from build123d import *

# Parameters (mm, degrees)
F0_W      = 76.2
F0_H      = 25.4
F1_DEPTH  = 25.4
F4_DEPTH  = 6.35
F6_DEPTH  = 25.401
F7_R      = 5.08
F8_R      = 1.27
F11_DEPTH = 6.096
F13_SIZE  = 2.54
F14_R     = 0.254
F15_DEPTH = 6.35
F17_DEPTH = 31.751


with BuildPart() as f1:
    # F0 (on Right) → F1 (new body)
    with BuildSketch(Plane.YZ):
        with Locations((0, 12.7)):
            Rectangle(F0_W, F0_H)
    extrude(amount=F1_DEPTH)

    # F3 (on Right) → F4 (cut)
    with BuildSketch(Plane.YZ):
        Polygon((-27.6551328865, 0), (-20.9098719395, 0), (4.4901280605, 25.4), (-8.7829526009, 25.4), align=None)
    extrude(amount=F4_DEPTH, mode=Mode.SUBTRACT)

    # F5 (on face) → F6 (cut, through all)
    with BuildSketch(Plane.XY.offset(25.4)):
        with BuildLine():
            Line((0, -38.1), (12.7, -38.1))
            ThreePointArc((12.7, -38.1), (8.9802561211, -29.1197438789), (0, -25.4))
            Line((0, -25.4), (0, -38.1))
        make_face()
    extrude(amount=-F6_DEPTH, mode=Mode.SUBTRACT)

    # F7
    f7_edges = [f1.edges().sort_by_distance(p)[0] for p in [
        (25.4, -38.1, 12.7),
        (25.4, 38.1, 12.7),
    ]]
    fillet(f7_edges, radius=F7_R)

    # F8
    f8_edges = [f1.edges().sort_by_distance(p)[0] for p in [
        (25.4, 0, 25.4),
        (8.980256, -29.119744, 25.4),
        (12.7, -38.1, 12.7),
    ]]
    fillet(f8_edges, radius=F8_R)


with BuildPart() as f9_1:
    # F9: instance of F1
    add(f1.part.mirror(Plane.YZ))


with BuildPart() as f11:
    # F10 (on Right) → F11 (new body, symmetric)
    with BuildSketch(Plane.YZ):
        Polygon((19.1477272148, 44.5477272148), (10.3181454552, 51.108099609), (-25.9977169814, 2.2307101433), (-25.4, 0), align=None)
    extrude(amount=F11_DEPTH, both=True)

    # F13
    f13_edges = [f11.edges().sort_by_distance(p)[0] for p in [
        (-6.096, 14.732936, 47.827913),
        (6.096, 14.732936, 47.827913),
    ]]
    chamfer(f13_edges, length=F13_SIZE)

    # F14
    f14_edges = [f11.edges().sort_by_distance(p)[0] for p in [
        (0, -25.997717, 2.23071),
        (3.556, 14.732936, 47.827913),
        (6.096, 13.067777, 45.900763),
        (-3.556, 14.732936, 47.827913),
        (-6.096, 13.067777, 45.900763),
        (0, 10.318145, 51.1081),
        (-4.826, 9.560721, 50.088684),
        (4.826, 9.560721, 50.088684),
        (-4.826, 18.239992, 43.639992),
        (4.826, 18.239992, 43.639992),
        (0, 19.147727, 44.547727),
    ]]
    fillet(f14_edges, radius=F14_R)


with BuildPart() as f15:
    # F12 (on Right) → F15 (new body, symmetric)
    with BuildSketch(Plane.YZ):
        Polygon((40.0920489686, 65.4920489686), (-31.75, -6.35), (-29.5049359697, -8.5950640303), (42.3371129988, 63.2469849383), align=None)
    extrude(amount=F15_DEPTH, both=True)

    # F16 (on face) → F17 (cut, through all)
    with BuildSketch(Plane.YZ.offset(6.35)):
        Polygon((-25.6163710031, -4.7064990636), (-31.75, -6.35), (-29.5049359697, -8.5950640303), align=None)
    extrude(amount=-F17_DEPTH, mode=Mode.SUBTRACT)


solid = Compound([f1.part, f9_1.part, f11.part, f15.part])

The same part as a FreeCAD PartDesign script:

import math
import FreeCAD as App
import Part
import Sketcher
Q = App.Units.Quantity


def edges_at(feature, points):
    """Names of the edges that pass closest to the given points."""
    edges = feature.Shape.Edges
    near = lambda p: min(range(len(edges)), key=lambda i: edges[i].distToShape(Part.Vertex(*p))[0])
    return sorted({f"Edge{near(p) + 1}" for p in points})


def add_polygon(sketch, points):
    """Adds a closed chain of lines whose ends are joined by coincident constraints."""
    first, n = sketch.GeometryCount, len(points)
    for a, b in zip(points, points[1:] + points[:1]):
        sketch.addGeometry(Part.LineSegment(App.Vector(*a, 0), App.Vector(*b, 0)), False)
    for i in range(n):
        sketch.addConstraint(Sketcher.Constraint("Coincident", first + i, 2, first + (i + 1) % n, 1))

doc = App.newDocument("Part")
body = doc.addObject("PartDesign::Body", "Body")

# Sketch on YZ plane
sketch1 = body.newObject("Sketcher::SketchObject", "Sketch")
sketch1.AttachmentSupport = (doc.getObject("YZ_Plane"), [""])
sketch1.MapMode = "FlatFace"
add_polygon(sketch1, [(-38.1, 25.4), (-38.1, 0), (38.1, 0), (38.1, 25.4)])  # lines 0-3
sketch1.addConstraint([
    Sketcher.Constraint("Vertical", 0),
    Sketcher.Constraint("Horizontal", 1),
    Sketcher.Constraint("Vertical", 2),
    Sketcher.Constraint("Horizontal", 3),
    Sketcher.Constraint("Symmetric", 0, 2, 1, 2, -1, 1),
    Sketcher.Constraint("DistanceX", 1, 1, 1, 2, Q("3 in")),
    Sketcher.Constraint("DistanceY", 0, 2, 0, 1, Q("1 in")),
])
pad1 = body.newObject("PartDesign::Pad", "Pad")
pad1.Profile = sketch1
pad1.Length = Q("1 in")

# Sketch on YZ plane
sketch2 = body.newObject("Sketcher::SketchObject", "Sketch001")
sketch2.AttachmentSupport = (doc.getObject("YZ_Plane"), [""])
sketch2.MapMode = "FlatFace"
add_polygon(sketch2, [(-27.655133, 0), (-20.909872, 0), (4.490128, 25.4), (-8.782953, 25.4)])  # lines 0-3
sketch2.addConstraint([
    Sketcher.Constraint("Horizontal", 0),
    Sketcher.Constraint("Horizontal", 2),
    Sketcher.Constraint("PointOnObject", 0, 2, -1),
    Sketcher.Constraint("DistanceY", -1, 1, 1, 2, Q("1 in")),
    Sketcher.Constraint("Angle", 1, Q("45 deg")),
    Sketcher.Constraint("DistanceX", 0, 1, 0, 2, 6.745261),
    Sketcher.Constraint("DistanceX", 2, 2, 2, 1, 13.273081),
    Sketcher.Constraint("DistanceX", 0, 2, -1, 1, 20.909872),
])
pocket1 = body.newObject("PartDesign::Pocket", "Pocket")
pocket1.Profile = sketch2
pocket1.Length = Q("0.25 in")
pocket1.Reversed = True

# Sketch on XY plane
sketch3 = body.newObject("Sketcher::SketchObject", "Sketch002")
sketch3.AttachmentSupport = (doc.getObject("XY_Plane"), [""])
sketch3.MapMode = "FlatFace"
sketch3.AttachmentOffset = App.Placement(App.Vector(0, 0, 1 * 25.4), App.Rotation())
sketch3.addGeometry([
    Part.LineSegment(App.Vector(0, -38.1, 0), App.Vector(12.7, -38.1, 0)),
    Part.ArcOfCircle(Part.Circle(App.Vector(0, -38.1, 0), App.Vector(0, 0, 1), 12.7), math.radians(0), math.radians(90)),
    Part.LineSegment(App.Vector(0, -25.4, 0), App.Vector(0, -38.1, 0)),
], False)
sketch3.addConstraint([
    Sketcher.Constraint("Coincident", 0, 2, 1, 1),
    Sketcher.Constraint("Coincident", 1, 2, 2, 1),
    Sketcher.Constraint("Coincident", 2, 2, 0, 1),
    Sketcher.Constraint("Horizontal", 0),
    Sketcher.Constraint("Vertical", 2),
    Sketcher.Constraint("Coincident", 2, 2, 1, 3),
    Sketcher.Constraint("PointOnObject", 1, 3, -2),
    Sketcher.Constraint("Radius", 1, Q("0.5 in")),
    Sketcher.Constraint("DistanceY", 1, 2, -1, 1, Q("1 in")),
])
pocket2 = body.newObject("PartDesign::Pocket", "Pocket001")
pocket2.Profile = sketch3
pocket2.Type = "ThroughAll"
doc.recompute()

fillet = body.newObject("PartDesign::Fillet", "Fillet")
fillet.Base = (pocket2, edges_at(pocket2, [(25.4, -38.1, 12.7), (25.4, 38.1, 12.7)]))
fillet.Radius = Q("0.2 in")
doc.recompute()

fillet2 = body.newObject("PartDesign::Fillet", "Fillet001")
fillet2.Base = (fillet, edges_at(fillet, [(25.4, 0, 25.4), (8.98, -29.12, 25.4), (12.7, -38.1, 12.7)]))
fillet2.Radius = Q("0.05 in")
body2 = doc.addObject("PartDesign::Body", "Body001")
doc.recompute()

mirroring = doc.addObject("Part::Mirroring", "Mirroring")
mirroring.Source = body
mirroring.Base = App.Vector(0, 0, 0)
mirroring.Normal = App.Vector(1, 0, 0)
body2.BaseFeature = mirroring
doc.recompute()
body3 = doc.addObject("PartDesign::Body", "Body002")

# Sketch on YZ plane
sketch4 = body3.newObject("Sketcher::SketchObject", "Sketch003")
sketch4.AttachmentSupport = (doc.getObject("YZ_Plane002"), [""])
sketch4.MapMode = "FlatFace"
add_polygon(sketch4, [(19.147727, 44.547727), (10.318145, 51.1081), (-25.997717, 2.23071), (-25.4, 0)])  # lines 0-3
sketch4.addConstraint([
    Sketcher.Constraint("PointOnObject", 2, 2, -1),
    Sketcher.Constraint("Perpendicular", 0, 1),
    Sketcher.Constraint("DistanceX", 2, 2, -1, 1, Q("1 in")),
    Sketcher.Constraint("Angle", 2, Q("-75 deg")),
    Sketcher.Constraint("Angle", 3, Q("45 deg")),
    Sketcher.Constraint("Distance", 0, 11.0),
    Sketcher.Constraint("Distance", 2, 2.309401),
    Sketcher.Constraint("Distance", 3, 63.0),
])
pad2 = body3.newObject("PartDesign::Pad", "Pad001")
pad2.Profile = sketch4
pad2.Length = Q("0.48 in")
pad2.Midplane = True
doc.recompute()

chamfer = body3.newObject("PartDesign::Chamfer", "Chamfer")
chamfer.Base = (pad2, edges_at(pad2, [(-6.096, 14.733, 47.828), (6.096, 14.733, 47.828)]))
chamfer.Size = Q("0.1 in")
doc.recompute()

fillet3 = body3.newObject("PartDesign::Fillet", "Fillet002")
fillet3.Base = (chamfer, edges_at(chamfer, [
    (0, -25.998, 2.231),
    (3.556, 14.733, 47.828),
    (6.096, 13.068, 45.901),
    (-3.556, 14.733, 47.828),
    (-6.096, 13.068, 45.901),
    (0, 10.318, 51.108),
    (-4.826, 9.561, 50.089),
    (4.826, 9.561, 50.089),
    (-4.826, 18.24, 43.64),
    (4.826, 18.24, 43.64),
    (0, 19.148, 44.548),
]))
fillet3.Radius = Q("0.01 in")
body4 = doc.addObject("PartDesign::Body", "Body003")

# Sketch on YZ plane
sketch5 = body4.newObject("Sketcher::SketchObject", "Sketch004")
sketch5.AttachmentSupport = (doc.getObject("YZ_Plane003"), [""])
sketch5.MapMode = "FlatFace"
add_polygon(sketch5, [(40.092049, 65.492049), (-31.75, -6.35), (-29.504936, -8.595064), (42.337113, 63.246985)])  # lines 0-3
sketch5.addConstraint([
    Sketcher.Constraint("Perpendicular", 0, 1),
    Sketcher.Constraint("Perpendicular", 1, 2),
    Sketcher.Constraint("Perpendicular", 2, 3),
    Sketcher.Constraint("Distance", 0, Q("4 in")),
    Sketcher.Constraint("Angle", 0, Q("-135 deg")),
    Sketcher.Constraint("DistanceX", 0, 2, -1, 1, Q("1.25 in")),
    Sketcher.Constraint("DistanceY", 0, 2, -1, 1, Q("0.25 in")),
    Sketcher.Constraint("Distance", 1, Q("0.125 in")),
])
pad3 = body4.newObject("PartDesign::Pad", "Pad002")
pad3.Profile = sketch5
pad3.Length = Q("0.5 in")
pad3.Midplane = True

# Sketch on YZ plane
sketch6 = body4.newObject("Sketcher::SketchObject", "Sketch005")
sketch6.AttachmentSupport = (doc.getObject("YZ_Plane003"), [""])
sketch6.MapMode = "FlatFace"
sketch6.AttachmentOffset = App.Placement(App.Vector(0, 0, 0.25 * 25.4), App.Rotation())
add_polygon(sketch6, [(-25.616371, -4.706499), (-31.75, -6.35), (-29.504936, -8.595064)])  # lines 0-2
sketch6.addConstraint([
    Sketcher.Constraint("Perpendicular", 1, 2),
    Sketcher.Constraint("Angle", 0, Q("-165 deg")),
    Sketcher.Constraint("Angle", 1, Q("-45 deg")),
    Sketcher.Constraint("Distance", 0, Q("0.25 in")),
    Sketcher.Constraint("DistanceX", 0, 2, -1, 1, Q("1.25 in")),
    Sketcher.Constraint("DistanceY", 0, 2, -1, 1, Q("0.25 in")),
])
pocket3 = body4.newObject("PartDesign::Pocket", "Pocket002")
pocket3.Profile = sketch6
pocket3.Type = "ThroughAll"
mirroring.Visibility = False

doc.recompute()
